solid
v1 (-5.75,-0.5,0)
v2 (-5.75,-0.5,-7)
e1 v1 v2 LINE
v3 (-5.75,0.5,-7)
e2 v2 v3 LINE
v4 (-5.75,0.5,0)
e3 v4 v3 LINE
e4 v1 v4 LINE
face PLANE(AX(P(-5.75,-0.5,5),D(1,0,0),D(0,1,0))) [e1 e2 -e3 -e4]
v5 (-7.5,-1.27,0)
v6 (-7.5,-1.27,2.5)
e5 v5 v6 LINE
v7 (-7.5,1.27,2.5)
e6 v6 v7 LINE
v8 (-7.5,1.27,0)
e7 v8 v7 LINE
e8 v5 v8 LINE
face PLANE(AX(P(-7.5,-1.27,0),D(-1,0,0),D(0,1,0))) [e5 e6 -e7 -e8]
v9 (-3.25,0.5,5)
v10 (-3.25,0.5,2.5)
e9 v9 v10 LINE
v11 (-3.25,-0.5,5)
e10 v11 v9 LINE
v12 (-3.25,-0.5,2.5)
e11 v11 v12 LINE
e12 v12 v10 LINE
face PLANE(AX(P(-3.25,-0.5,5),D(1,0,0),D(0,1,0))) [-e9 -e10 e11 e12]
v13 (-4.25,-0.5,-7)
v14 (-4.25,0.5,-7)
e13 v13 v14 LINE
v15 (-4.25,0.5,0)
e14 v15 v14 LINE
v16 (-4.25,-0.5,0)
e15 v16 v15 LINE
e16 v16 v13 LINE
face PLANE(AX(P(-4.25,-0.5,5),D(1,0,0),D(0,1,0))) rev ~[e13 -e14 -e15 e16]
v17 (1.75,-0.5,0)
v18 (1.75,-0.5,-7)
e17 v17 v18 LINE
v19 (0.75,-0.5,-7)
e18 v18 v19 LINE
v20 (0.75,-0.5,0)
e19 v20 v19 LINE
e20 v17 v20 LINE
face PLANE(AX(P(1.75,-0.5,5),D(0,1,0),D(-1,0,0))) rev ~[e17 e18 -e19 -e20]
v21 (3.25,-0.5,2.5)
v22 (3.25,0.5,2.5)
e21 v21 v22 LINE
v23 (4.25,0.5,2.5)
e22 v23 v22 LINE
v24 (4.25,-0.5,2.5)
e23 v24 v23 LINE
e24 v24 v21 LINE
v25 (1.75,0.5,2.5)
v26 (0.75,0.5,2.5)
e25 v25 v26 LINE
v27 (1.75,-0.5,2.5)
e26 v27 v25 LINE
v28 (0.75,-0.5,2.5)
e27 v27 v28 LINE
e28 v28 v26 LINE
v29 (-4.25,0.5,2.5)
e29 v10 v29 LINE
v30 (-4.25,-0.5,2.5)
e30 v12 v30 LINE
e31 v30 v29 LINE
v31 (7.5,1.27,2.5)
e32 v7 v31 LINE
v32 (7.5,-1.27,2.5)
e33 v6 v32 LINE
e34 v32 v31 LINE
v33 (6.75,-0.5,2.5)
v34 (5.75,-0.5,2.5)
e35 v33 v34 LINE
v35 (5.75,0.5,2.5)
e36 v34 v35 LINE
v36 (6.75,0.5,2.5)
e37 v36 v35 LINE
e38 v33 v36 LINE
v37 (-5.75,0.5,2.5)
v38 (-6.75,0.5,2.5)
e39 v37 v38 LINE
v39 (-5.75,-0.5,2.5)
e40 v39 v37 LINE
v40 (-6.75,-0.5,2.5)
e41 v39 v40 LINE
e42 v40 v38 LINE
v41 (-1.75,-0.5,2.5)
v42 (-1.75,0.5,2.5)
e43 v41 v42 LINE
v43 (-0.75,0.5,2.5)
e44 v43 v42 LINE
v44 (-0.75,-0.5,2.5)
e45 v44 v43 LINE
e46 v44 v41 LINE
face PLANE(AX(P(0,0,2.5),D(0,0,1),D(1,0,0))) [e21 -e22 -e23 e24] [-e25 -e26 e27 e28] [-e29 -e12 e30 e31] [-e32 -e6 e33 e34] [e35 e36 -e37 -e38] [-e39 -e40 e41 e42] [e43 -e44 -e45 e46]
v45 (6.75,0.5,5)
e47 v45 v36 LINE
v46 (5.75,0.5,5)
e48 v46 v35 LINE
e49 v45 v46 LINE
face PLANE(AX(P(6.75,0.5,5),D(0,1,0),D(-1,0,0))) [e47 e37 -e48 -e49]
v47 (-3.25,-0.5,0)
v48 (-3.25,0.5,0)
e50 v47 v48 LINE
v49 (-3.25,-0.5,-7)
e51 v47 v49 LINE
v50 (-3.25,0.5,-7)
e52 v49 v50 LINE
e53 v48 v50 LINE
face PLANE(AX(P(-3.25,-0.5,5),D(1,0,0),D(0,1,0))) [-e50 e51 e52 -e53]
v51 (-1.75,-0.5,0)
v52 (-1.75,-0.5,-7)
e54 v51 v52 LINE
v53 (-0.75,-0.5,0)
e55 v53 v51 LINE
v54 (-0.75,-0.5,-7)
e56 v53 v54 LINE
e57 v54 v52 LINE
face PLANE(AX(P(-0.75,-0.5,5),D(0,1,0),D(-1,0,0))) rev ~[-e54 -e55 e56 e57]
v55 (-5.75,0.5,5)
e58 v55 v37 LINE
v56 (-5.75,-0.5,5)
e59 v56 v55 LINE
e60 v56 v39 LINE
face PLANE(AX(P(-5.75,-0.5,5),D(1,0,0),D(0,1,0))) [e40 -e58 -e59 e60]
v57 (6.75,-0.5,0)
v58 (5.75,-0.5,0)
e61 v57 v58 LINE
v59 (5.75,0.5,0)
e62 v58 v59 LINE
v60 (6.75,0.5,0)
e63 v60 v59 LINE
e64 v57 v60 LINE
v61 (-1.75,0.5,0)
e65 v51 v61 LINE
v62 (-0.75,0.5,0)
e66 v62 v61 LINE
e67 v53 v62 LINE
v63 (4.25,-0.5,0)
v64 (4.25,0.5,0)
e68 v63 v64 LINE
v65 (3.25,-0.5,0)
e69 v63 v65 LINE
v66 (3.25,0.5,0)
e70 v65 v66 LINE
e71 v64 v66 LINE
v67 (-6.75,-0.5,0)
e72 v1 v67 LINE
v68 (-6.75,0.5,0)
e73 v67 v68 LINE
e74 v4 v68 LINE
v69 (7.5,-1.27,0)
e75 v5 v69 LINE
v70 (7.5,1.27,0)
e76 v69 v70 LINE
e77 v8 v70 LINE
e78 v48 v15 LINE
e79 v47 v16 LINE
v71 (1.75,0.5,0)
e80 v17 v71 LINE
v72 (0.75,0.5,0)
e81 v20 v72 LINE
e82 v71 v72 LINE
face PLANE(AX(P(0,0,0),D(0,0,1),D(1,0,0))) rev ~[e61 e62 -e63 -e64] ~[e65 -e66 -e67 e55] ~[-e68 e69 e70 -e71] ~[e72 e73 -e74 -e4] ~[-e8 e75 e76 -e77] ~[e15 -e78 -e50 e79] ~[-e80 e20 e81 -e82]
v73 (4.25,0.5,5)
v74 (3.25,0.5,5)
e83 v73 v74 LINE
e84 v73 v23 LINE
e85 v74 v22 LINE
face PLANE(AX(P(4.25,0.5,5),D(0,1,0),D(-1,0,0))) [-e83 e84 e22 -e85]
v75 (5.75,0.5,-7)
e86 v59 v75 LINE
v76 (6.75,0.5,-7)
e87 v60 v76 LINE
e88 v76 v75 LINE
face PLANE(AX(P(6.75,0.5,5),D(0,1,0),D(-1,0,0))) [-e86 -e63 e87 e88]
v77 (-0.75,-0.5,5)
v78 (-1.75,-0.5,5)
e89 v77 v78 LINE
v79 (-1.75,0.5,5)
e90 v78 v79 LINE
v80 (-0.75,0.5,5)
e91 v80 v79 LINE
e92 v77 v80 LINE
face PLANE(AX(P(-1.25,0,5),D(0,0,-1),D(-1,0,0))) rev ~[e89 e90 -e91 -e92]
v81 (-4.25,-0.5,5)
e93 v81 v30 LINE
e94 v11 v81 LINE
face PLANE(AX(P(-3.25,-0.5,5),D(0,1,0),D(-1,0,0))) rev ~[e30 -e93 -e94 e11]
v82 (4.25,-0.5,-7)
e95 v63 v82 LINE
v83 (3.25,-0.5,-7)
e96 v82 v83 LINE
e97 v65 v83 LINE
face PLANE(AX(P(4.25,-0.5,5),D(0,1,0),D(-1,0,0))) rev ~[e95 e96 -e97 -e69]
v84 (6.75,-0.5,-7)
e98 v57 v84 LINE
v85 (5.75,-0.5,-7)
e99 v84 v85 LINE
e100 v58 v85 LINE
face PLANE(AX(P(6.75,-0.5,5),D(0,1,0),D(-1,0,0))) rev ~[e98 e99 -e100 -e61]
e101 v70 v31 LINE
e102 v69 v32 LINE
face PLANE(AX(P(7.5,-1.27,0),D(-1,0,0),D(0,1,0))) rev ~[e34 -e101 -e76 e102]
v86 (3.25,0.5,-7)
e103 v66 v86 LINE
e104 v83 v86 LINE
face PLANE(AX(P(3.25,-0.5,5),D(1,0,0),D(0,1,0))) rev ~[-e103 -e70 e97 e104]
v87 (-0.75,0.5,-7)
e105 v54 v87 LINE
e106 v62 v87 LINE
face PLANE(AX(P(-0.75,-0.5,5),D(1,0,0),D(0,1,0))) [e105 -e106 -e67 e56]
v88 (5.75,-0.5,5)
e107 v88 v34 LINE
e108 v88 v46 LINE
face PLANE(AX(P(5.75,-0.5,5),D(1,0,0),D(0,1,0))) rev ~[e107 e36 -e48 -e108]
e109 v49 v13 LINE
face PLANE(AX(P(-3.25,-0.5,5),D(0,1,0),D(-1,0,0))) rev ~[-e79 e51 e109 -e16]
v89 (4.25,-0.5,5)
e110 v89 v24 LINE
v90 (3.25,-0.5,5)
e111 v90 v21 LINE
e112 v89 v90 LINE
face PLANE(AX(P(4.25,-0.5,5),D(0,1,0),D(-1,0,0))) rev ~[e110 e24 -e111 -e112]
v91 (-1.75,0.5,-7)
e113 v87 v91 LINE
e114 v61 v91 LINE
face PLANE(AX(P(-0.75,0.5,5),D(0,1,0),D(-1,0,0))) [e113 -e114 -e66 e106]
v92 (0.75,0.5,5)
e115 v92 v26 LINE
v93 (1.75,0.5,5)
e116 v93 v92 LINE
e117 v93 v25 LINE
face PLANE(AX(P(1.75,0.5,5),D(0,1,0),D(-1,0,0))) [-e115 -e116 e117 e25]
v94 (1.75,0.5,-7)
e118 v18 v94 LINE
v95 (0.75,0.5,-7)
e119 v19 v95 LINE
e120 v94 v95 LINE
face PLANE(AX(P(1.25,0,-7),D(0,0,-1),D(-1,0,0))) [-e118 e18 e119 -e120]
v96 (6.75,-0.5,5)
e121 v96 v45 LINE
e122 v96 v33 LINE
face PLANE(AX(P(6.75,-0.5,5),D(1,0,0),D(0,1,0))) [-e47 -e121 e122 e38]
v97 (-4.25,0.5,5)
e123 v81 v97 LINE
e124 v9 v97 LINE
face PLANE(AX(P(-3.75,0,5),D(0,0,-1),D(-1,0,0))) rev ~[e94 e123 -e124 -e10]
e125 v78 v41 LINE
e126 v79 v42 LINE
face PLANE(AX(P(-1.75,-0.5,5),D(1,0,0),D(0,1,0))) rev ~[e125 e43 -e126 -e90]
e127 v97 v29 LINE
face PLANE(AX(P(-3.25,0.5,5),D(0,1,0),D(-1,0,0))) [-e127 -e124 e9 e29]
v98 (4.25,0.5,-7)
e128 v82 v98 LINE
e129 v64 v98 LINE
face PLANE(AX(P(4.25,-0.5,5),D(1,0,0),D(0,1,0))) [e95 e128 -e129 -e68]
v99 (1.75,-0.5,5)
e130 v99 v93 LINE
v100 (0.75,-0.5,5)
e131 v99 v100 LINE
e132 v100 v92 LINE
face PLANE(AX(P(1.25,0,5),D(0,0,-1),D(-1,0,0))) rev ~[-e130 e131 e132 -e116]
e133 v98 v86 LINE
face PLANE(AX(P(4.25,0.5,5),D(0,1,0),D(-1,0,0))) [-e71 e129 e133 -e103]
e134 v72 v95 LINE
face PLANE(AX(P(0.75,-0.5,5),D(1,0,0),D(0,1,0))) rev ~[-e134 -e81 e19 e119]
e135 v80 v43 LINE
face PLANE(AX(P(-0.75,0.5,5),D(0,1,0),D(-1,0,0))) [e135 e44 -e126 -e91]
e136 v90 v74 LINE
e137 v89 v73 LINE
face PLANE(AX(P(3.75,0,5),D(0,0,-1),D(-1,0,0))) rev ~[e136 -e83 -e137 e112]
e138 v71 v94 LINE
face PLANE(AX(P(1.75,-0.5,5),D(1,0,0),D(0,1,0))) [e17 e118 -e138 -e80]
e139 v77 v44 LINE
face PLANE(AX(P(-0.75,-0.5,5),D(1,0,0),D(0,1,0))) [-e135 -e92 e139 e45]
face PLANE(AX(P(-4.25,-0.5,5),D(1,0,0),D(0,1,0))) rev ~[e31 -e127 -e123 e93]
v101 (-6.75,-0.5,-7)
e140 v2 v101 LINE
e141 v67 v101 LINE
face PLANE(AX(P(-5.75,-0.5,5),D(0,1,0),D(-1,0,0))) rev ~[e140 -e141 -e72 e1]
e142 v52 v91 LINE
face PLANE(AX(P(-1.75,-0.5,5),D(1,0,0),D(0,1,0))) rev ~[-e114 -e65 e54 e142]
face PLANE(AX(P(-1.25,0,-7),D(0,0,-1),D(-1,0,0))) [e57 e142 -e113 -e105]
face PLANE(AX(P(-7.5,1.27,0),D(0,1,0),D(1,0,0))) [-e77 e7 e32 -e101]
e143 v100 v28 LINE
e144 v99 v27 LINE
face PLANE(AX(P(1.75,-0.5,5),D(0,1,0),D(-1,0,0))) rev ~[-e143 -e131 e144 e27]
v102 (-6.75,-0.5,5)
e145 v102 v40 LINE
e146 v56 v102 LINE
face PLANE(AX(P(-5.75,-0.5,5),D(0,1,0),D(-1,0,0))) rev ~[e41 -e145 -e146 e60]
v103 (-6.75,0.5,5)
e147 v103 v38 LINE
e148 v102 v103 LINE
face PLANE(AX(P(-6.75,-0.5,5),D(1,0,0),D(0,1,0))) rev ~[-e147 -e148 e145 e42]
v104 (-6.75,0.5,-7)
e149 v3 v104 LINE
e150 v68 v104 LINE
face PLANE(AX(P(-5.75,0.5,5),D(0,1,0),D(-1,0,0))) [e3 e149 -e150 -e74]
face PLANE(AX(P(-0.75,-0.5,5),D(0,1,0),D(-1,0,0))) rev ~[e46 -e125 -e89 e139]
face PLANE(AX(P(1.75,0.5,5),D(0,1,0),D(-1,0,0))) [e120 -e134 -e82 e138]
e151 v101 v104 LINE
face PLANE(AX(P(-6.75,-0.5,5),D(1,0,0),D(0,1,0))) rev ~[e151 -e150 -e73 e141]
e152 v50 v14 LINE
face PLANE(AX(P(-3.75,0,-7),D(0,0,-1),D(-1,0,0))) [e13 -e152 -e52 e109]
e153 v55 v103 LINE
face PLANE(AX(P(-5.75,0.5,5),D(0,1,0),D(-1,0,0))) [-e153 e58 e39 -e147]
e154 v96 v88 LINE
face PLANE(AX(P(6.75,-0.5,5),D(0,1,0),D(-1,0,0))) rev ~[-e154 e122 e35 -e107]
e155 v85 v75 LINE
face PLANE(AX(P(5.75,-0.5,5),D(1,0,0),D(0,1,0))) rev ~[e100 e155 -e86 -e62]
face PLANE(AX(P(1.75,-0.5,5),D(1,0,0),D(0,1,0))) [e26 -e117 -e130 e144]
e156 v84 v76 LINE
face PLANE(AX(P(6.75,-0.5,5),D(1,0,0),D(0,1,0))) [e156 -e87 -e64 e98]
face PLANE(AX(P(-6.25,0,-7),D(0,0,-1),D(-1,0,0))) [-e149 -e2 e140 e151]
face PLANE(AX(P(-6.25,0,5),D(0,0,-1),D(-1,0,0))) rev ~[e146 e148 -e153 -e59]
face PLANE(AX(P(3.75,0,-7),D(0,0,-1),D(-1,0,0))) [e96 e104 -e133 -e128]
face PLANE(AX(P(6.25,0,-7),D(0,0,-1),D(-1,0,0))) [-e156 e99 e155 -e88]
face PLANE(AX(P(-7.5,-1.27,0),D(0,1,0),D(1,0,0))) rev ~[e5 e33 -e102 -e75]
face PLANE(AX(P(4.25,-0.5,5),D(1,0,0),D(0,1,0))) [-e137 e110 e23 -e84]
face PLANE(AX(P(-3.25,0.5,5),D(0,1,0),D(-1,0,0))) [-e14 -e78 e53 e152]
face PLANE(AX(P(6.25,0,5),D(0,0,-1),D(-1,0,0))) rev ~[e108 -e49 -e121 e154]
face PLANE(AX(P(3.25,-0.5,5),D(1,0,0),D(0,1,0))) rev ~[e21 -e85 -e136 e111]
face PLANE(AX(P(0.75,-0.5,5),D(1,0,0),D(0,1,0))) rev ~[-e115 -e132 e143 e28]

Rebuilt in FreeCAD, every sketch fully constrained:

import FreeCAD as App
import Part
import Sketcher
from FreeCAD import Vector

doc = App.newDocument("Part")
body = doc.addObject("PartDesign::Body", "Body")

# Sketch on XY plane
sketch1 = doc.addObject("Sketcher::SketchObject", "Sketch")
body.addObject(sketch1)
sketch1.AttachmentSupport = (doc.XY_Plane, [""])
sketch1.MapMode = "FlatFace"
sketch1.addGeometry([
    Part.LineSegment(Vector(-7.5, 1.3, 0), Vector(-7.5, -1.3, 0)),
    Part.LineSegment(Vector(-7.5, -1.3, 0), Vector(7.5, -1.3, 0)),
    Part.LineSegment(Vector(7.5, -1.3, 0), Vector(7.5, 1.3, 0)),
    Part.LineSegment(Vector(7.5, 1.3, 0), Vector(-7.5, 1.3, 0)),
], False)
sketch1.addConstraint([
    Sketcher.Constraint("Coincident", 0, 2, 1, 1),
    Sketcher.Constraint("Coincident", 1, 2, 2, 1),
    Sketcher.Constraint("Coincident", 2, 2, 3, 1),
    Sketcher.Constraint("Coincident", 3, 2, 0, 1),
    Sketcher.Constraint("Vertical", 0),
    Sketcher.Constraint("Horizontal", 1),
    Sketcher.Constraint("Vertical", 2),
    Sketcher.Constraint("Horizontal", 3),
    Sketcher.Constraint("Symmetric", 0, 2, 2, 2, -1, 1),
    Sketcher.Constraint("DistanceX", 1, 1, 1, 2, 15.0),
    Sketcher.Constraint("DistanceY", 0, 2, 0, 1, 2.54),
])
pad1 = doc.addObject("PartDesign::Pad", "Pad")
body.addObject(pad1)
pad1.Profile = sketch1
pad1.Length = 2.5

# Sketch on XY plane
sketch2 = doc.addObject("Sketcher::SketchObject", "Sketch001")
body.addObject(sketch2)
sketch2.AttachmentSupport = (doc.XY_Plane, [""])
sketch2.MapMode = "FlatFace"
sketch2.addGeometry([
    Part.LineSegment(Vector(4.2, 0.5, 0), Vector(4.2, -0.5, 0)),  # 0
    Part.LineSegment(Vector(4.2, -0.5, 0), Vector(3.2, -0.5, 0)),  # 1
    Part.LineSegment(Vector(3.2, -0.5, 0), Vector(3.2, 0.5, 0)),  # 2
    Part.LineSegment(Vector(3.2, 0.5, 0), Vector(4.2, 0.5, 0)),  # 3
    Part.LineSegment(Vector(6.8, 0.5, 0), Vector(6.8, -0.5, 0)),  # 4
    Part.LineSegment(Vector(6.8, -0.5, 0), Vector(5.8, -0.5, 0)),  # 5
    Part.LineSegment(Vector(5.8, -0.5, 0), Vector(5.8, 0.5, 0)),  # 6
    Part.LineSegment(Vector(5.8, 0.5, 0), Vector(6.8, 0.5, 0)),  # 7
    Part.LineSegment(Vector(1.8, 0.5, 0), Vector(1.8, -0.5, 0)),  # 8
    Part.LineSegment(Vector(1.8, -0.5, 0), Vector(0.8, -0.5, 0)),  # 9
    Part.LineSegment(Vector(0.8, -0.5, 0), Vector(0.8, 0.5, 0)),  # 10
    Part.LineSegment(Vector(0.8, 0.5, 0), Vector(1.8, 0.5, 0)),  # 11
    Part.LineSegment(Vector(-0.8, 0.5, 0), Vector(-0.8, -0.5, 0)),  # 12
    Part.LineSegment(Vector(-0.8, -0.5, 0), Vector(-1.8, -0.5, 0)),  # 13
    Part.LineSegment(Vector(-1.8, -0.5, 0), Vector(-1.8, 0.5, 0)),  # 14
    Part.LineSegment(Vector(-1.8, 0.5, 0), Vector(-0.8, 0.5, 0)),  # 15
    Part.LineSegment(Vector(-3.2, 0.5, 0), Vector(-3.2, -0.5, 0)),  # 16
    Part.LineSegment(Vector(-3.2, -0.5, 0), Vector(-4.2, -0.5, 0)),  # 17
    Part.LineSegment(Vector(-4.2, -0.5, 0), Vector(-4.2, 0.5, 0)),  # 18
    Part.LineSegment(Vector(-4.2, 0.5, 0), Vector(-3.2, 0.5, 0)),  # 19
    Part.LineSegment(Vector(-5.8, 0.5, 0), Vector(-5.8, -0.5, 0)),  # 20
    Part.LineSegment(Vector(-5.8, -0.5, 0), Vector(-6.8, -0.5, 0)),  # 21
    Part.LineSegment(Vector(-6.8, -0.5, 0), Vector(-6.8, 0.5, 0)),  # 22
    Part.LineSegment(Vector(-6.8, 0.5, 0), Vector(-5.8, 0.5, 0)),  # 23
], False)
sketch2.addConstraint([
    Sketcher.Constraint("Coincident", 0, 2, 1, 1),
    Sketcher.Constraint("Coincident", 1, 2, 2, 1),
    Sketcher.Constraint("Coincident", 2, 2, 3, 1),
    Sketcher.Constraint("Coincident", 3, 2, 0, 1),
    Sketcher.Constraint("Coincident", 4, 2, 5, 1),
    Sketcher.Constraint("Coincident", 5, 2, 6, 1),
    Sketcher.Constraint("Coincident", 6, 2, 7, 1),
    Sketcher.Constraint("Coincident", 7, 2, 4, 1),
    Sketcher.Constraint("Coincident", 8, 2, 9, 1),
    Sketcher.Constraint("Coincident", 9, 2, 10, 1),
    Sketcher.Constraint("Coincident", 10, 2, 11, 1),
    Sketcher.Constraint("Coincident", 11, 2, 8, 1),
    Sketcher.Constraint("Coincident", 12, 2, 13, 1),
    Sketcher.Constraint("Coincident", 13, 2, 14, 1),
    Sketcher.Constraint("Coincident", 14, 2, 15, 1),
    Sketcher.Constraint("Coincident", 15, 2, 12, 1),
    Sketcher.Constraint("Coincident", 16, 2, 17, 1),
    Sketcher.Constraint("Coincident", 17, 2, 18, 1),
    Sketcher.Constraint("Coincident", 18, 2, 19, 1),
    Sketcher.Constraint("Coincident", 19, 2, 16, 1),
    Sketcher.Constraint("Coincident", 20, 2, 21, 1),
    Sketcher.Constraint("Coincident", 21, 2, 22, 1),
    Sketcher.Constraint("Coincident", 22, 2, 23, 1),
    Sketcher.Constraint("Coincident", 23, 2, 20, 1),
    Sketcher.Constraint("Vertical", 0),
    Sketcher.Constraint("Horizontal", 1),
    Sketcher.Constraint("Vertical", 2),
    Sketcher.Constraint("Horizontal", 3),
    Sketcher.Constraint("Vertical", 4),
    Sketcher.Constraint("Horizontal", 5),
    Sketcher.Constraint("Vertical", 6),
    Sketcher.Constraint("Horizontal", 7),
    Sketcher.Constraint("Vertical", 8),
    Sketcher.Constraint("Horizontal", 9),
    Sketcher.Constraint("Vertical", 10),
    Sketcher.Constraint("Horizontal", 11),
    Sketcher.Constraint("Vertical", 12),
    Sketcher.Constraint("Horizontal", 13),
    Sketcher.Constraint("Vertical", 14),
    Sketcher.Constraint("Horizontal", 15),
    Sketcher.Constraint("Vertical", 16),
    Sketcher.Constraint("Horizontal", 17),
    Sketcher.Constraint("Vertical", 18),
    Sketcher.Constraint("Horizontal", 19),
    Sketcher.Constraint("Vertical", 20),
    Sketcher.Constraint("Horizontal", 21),
    Sketcher.Constraint("Vertical", 22),
    Sketcher.Constraint("Horizontal", 23),
    Sketcher.Constraint("Symmetric", 10, 2, 12, 2, -1, 1),
    Sketcher.Constraint("Symmetric", 8, 2, 14, 2, -1, 1),
    Sketcher.Constraint("Symmetric", 2, 2, 16, 2, -1, 1),
    Sketcher.Constraint("Symmetric", 0, 2, 18, 2, -1, 1),
    Sketcher.Constraint("Symmetric", 6, 2, 20, 2, -1, 1),
    Sketcher.Constraint("Symmetric", 4, 2, 22, 2, -1, 1),
    Sketcher.Constraint("Horizontal", 1, 2, 4, 2),
    Sketcher.Constraint("Horizontal", 3, 2, 6, 2),
    Sketcher.Constraint("Horizontal", 5, 2, 8, 2),
    Sketcher.Constraint("Horizontal", 7, 2, 10, 2),
    Sketcher.Constraint("Horizontal", 9, 2, 12, 2),
    Sketcher.Constraint("Equal", 3, 5),
    Sketcher.Constraint("Equal", 7, 9),
    Sketcher.Constraint("Equal", 23, 0),
    Sketcher.Constraint("DistanceX", 1, 2, 1, 1, 1.0),
    Sketcher.Constraint("DistanceX", 8, 2, 5, 2, 4.0),
    Sketcher.Constraint("DistanceX", 12, 2, 1, 2, 4.0),
    Sketcher.Constraint("DistanceX", 0, 2, 4, 2, 2.5),
])
pad2 = doc.addObject("PartDesign::Pad", "Pad001")
body.addObject(pad2)
pad2.Profile = sketch2
pad2.Type = "TwoLengths"
pad2.Length = 7
pad2.Length2 = 5
pad2.Reversed = True

doc.recompute()
